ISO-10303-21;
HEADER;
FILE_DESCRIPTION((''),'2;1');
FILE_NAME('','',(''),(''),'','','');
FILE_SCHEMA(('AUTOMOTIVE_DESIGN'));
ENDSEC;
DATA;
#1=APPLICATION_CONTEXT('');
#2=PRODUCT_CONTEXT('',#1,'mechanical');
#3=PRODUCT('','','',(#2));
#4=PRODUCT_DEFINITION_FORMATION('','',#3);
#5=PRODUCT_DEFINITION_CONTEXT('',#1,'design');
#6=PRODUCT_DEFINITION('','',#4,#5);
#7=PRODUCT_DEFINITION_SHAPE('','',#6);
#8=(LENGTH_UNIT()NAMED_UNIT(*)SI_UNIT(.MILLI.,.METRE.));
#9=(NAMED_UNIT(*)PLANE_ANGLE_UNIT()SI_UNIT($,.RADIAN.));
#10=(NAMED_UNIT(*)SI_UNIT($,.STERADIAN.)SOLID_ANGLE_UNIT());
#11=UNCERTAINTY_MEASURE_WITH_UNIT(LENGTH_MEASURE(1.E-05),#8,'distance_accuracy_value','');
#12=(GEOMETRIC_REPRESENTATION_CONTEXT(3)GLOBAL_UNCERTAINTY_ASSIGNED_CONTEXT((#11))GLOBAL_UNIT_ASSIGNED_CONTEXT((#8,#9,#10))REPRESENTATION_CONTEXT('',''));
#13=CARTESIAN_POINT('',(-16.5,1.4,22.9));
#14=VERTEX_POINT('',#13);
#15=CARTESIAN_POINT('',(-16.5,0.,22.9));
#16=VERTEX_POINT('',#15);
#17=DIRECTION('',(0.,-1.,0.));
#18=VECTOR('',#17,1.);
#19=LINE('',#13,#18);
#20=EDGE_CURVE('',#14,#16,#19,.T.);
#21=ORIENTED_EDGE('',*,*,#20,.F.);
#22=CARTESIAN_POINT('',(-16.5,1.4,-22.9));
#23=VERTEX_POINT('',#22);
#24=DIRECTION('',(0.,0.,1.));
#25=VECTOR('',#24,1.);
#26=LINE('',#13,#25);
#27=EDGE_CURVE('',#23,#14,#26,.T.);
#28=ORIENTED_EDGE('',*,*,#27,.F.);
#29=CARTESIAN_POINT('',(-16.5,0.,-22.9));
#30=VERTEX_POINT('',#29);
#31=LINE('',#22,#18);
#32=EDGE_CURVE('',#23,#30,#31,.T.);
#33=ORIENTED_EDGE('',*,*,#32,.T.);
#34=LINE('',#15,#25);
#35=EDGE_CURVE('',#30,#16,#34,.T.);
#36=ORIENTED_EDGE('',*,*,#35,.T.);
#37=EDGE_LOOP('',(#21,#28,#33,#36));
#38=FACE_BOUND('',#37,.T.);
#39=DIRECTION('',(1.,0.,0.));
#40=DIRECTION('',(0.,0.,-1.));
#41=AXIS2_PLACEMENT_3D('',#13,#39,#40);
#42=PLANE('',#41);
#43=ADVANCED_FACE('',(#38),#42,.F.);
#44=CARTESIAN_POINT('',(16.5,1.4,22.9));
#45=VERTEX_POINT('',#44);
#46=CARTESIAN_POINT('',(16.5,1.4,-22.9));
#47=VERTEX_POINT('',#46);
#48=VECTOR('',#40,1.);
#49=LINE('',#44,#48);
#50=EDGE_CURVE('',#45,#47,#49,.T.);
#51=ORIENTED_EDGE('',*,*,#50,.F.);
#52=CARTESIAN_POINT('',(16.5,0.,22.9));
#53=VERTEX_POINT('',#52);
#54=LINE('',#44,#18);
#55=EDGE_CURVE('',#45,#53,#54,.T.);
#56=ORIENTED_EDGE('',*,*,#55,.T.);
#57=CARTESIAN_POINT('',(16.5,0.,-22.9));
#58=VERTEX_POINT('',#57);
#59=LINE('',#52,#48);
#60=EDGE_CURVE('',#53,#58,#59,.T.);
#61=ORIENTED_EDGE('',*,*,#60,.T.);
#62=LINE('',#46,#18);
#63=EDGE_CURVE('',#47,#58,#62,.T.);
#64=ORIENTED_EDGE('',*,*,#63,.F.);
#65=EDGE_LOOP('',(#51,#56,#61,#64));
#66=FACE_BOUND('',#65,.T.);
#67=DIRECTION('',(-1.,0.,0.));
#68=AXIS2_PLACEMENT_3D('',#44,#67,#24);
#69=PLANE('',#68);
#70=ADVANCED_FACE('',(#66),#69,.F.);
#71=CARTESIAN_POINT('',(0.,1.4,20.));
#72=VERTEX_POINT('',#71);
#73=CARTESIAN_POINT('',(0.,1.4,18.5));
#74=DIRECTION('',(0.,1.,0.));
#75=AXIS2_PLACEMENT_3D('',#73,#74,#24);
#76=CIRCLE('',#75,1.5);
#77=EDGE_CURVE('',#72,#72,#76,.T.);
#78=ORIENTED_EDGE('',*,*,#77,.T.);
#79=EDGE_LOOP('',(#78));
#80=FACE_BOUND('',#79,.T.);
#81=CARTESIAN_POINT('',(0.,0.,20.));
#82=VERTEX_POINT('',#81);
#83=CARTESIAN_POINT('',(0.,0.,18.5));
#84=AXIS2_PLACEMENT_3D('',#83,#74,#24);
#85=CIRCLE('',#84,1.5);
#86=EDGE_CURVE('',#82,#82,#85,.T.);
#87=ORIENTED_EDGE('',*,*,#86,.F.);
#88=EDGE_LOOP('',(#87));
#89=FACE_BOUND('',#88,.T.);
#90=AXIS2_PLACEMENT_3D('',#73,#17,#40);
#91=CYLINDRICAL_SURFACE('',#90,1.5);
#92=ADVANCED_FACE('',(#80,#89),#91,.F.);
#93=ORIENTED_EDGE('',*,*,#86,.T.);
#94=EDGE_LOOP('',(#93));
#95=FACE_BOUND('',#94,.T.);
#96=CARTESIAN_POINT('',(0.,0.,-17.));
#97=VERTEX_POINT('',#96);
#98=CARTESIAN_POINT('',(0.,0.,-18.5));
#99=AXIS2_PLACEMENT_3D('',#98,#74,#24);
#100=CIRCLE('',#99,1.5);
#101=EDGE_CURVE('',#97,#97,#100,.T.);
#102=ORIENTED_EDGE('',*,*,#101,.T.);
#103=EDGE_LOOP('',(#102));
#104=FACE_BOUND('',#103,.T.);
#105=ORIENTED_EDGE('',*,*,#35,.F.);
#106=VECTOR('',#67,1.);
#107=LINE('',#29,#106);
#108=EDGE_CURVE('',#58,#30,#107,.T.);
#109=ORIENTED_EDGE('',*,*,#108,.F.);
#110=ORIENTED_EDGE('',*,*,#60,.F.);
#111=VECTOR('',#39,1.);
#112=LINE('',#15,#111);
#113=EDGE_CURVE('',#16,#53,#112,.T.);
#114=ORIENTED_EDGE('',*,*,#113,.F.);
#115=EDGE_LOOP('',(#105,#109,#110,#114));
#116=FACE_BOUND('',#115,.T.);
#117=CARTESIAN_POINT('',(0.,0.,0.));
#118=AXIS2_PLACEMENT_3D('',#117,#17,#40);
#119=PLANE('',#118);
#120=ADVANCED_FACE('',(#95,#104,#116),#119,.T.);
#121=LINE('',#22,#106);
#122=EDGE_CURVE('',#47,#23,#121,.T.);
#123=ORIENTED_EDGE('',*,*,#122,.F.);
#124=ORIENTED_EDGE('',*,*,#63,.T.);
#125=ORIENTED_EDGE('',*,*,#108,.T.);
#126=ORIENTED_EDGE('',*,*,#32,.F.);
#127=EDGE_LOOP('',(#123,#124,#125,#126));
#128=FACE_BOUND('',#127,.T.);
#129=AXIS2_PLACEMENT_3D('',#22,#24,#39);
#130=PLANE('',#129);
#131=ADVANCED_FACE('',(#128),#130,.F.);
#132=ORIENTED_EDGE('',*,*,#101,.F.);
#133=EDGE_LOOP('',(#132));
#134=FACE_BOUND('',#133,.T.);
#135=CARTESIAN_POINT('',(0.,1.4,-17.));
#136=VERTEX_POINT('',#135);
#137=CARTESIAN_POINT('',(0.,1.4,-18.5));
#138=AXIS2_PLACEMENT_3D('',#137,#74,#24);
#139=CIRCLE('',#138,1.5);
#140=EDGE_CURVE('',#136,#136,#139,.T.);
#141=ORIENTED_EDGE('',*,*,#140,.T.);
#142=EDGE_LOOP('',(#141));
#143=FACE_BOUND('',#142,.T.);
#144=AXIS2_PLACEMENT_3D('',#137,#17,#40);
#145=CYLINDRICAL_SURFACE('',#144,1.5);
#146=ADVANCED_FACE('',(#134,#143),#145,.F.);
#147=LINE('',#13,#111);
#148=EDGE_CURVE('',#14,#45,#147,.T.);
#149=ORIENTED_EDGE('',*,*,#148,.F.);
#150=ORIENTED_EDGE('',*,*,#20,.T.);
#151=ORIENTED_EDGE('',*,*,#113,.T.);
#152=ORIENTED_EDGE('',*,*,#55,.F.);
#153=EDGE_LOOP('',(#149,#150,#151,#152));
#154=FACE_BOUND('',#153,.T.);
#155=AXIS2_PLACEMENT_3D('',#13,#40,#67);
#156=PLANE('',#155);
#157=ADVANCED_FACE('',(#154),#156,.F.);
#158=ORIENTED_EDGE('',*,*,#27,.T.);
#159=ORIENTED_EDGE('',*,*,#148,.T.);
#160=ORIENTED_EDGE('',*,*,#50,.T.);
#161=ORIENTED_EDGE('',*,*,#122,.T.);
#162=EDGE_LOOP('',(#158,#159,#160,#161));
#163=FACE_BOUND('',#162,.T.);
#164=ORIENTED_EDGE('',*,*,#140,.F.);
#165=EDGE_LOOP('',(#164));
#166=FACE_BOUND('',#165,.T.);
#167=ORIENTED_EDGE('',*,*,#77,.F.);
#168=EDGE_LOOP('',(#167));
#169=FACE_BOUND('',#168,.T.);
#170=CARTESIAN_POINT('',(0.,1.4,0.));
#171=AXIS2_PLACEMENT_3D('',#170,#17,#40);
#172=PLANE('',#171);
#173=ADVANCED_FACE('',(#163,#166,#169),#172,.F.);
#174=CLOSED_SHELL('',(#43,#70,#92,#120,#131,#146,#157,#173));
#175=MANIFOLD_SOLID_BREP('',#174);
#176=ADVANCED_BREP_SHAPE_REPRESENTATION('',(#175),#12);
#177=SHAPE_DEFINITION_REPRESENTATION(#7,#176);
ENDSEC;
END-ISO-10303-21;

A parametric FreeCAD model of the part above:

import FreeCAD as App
import Part
import Sketcher

V = App.Vector

doc = App.newDocument("Part")
params = doc.addObject("Spreadsheet::Sheet", "Params")
for row, (alias, value) in enumerate([
    ("sketch1_diameter", "3 mm"),
    ("sketch1_width", "33 mm"),
    ("sketch1_height", "45.8 mm"),
    ("pad1_length", "1.4 mm"),
], start=1):
    params.set(f"A{row}", alias)
    params.set(f"B{row}", "=" + value)
    params.setAlias(f"B{row}", alias)

body = doc.addObject("PartDesign::Body", "Body")

# Sketch on XZ plane
sketch1 = doc.addObject("Sketcher::SketchObject", "Sketch")
body.addObject(sketch1)
sketch1.AttachmentSupport = (doc.XZ_Plane, [""])
sketch1.MapMode = "FlatFace"
sketch1.addGeometry([
    Part.LineSegment(V(-16.5, -22.9, 0), V(-16.5, 22.9, 0)),  # 0
    Part.LineSegment(V(-16.5, 22.9, 0), V(16.5, 22.9, 0)),  # 1
    Part.LineSegment(V(16.5, 22.9, 0), V(16.5, -22.9, 0)),  # 2
    Part.LineSegment(V(16.5, -22.9, 0), V(-16.5, -22.9, 0)),  # 3
    Part.Circle(V(0, 18.5, 0), V(0, 0, 1), 1.5),  # 4
    Part.Circle(V(0, -18.5, 0), V(0, 0, 1), 1.5),  # 5
], False)
sketch1.addConstraint([
    Sketcher.Constraint("Coincident", 0, 2, 1, 1),
    Sketcher.Constraint("Coincident", 1, 2, 2, 1),
    Sketcher.Constraint("Coincident", 2, 2, 3, 1),
    Sketcher.Constraint("Coincident", 3, 2, 0, 1),
    Sketcher.Constraint("Vertical", 0),
    Sketcher.Constraint("Horizontal", 1),
    Sketcher.Constraint("Vertical", 2),
    Sketcher.Constraint("Horizontal", 3),
    Sketcher.Constraint("Equal", 4, 5),
    Sketcher.Constraint("Symmetric", 4, 3, 5, 3, -1, 1),
    Sketcher.Constraint("Symmetric", 0, 2, 2, 2, -1, 1),
    Sketcher.Constraint("PointOnObject", 4, 3, -2),
    Sketcher.Constraint("Diameter", 4, 3.0),
    Sketcher.Constraint("DistanceX", 1, 1, 1, 2, 33.0),
    Sketcher.Constraint("DistanceY", 0, 1, 0, 2, 45.8),
    Sketcher.Constraint("DistanceY", 5, 3, 4, 3, 37.0),
])
sketch1.setExpression("Constraints[12]", "Params.sketch1_diameter")
sketch1.setExpression("Constraints[13]", "Params.sketch1_width")
sketch1.setExpression("Constraints[14]", "Params.sketch1_height")
pad1 = doc.addObject("PartDesign::Pad", "Pad")
body.addObject(pad1)
pad1.Profile = sketch1
pad1.setExpression("Length", "Params.pad1_length")
pad1.Reversed = True

doc.recompute()
